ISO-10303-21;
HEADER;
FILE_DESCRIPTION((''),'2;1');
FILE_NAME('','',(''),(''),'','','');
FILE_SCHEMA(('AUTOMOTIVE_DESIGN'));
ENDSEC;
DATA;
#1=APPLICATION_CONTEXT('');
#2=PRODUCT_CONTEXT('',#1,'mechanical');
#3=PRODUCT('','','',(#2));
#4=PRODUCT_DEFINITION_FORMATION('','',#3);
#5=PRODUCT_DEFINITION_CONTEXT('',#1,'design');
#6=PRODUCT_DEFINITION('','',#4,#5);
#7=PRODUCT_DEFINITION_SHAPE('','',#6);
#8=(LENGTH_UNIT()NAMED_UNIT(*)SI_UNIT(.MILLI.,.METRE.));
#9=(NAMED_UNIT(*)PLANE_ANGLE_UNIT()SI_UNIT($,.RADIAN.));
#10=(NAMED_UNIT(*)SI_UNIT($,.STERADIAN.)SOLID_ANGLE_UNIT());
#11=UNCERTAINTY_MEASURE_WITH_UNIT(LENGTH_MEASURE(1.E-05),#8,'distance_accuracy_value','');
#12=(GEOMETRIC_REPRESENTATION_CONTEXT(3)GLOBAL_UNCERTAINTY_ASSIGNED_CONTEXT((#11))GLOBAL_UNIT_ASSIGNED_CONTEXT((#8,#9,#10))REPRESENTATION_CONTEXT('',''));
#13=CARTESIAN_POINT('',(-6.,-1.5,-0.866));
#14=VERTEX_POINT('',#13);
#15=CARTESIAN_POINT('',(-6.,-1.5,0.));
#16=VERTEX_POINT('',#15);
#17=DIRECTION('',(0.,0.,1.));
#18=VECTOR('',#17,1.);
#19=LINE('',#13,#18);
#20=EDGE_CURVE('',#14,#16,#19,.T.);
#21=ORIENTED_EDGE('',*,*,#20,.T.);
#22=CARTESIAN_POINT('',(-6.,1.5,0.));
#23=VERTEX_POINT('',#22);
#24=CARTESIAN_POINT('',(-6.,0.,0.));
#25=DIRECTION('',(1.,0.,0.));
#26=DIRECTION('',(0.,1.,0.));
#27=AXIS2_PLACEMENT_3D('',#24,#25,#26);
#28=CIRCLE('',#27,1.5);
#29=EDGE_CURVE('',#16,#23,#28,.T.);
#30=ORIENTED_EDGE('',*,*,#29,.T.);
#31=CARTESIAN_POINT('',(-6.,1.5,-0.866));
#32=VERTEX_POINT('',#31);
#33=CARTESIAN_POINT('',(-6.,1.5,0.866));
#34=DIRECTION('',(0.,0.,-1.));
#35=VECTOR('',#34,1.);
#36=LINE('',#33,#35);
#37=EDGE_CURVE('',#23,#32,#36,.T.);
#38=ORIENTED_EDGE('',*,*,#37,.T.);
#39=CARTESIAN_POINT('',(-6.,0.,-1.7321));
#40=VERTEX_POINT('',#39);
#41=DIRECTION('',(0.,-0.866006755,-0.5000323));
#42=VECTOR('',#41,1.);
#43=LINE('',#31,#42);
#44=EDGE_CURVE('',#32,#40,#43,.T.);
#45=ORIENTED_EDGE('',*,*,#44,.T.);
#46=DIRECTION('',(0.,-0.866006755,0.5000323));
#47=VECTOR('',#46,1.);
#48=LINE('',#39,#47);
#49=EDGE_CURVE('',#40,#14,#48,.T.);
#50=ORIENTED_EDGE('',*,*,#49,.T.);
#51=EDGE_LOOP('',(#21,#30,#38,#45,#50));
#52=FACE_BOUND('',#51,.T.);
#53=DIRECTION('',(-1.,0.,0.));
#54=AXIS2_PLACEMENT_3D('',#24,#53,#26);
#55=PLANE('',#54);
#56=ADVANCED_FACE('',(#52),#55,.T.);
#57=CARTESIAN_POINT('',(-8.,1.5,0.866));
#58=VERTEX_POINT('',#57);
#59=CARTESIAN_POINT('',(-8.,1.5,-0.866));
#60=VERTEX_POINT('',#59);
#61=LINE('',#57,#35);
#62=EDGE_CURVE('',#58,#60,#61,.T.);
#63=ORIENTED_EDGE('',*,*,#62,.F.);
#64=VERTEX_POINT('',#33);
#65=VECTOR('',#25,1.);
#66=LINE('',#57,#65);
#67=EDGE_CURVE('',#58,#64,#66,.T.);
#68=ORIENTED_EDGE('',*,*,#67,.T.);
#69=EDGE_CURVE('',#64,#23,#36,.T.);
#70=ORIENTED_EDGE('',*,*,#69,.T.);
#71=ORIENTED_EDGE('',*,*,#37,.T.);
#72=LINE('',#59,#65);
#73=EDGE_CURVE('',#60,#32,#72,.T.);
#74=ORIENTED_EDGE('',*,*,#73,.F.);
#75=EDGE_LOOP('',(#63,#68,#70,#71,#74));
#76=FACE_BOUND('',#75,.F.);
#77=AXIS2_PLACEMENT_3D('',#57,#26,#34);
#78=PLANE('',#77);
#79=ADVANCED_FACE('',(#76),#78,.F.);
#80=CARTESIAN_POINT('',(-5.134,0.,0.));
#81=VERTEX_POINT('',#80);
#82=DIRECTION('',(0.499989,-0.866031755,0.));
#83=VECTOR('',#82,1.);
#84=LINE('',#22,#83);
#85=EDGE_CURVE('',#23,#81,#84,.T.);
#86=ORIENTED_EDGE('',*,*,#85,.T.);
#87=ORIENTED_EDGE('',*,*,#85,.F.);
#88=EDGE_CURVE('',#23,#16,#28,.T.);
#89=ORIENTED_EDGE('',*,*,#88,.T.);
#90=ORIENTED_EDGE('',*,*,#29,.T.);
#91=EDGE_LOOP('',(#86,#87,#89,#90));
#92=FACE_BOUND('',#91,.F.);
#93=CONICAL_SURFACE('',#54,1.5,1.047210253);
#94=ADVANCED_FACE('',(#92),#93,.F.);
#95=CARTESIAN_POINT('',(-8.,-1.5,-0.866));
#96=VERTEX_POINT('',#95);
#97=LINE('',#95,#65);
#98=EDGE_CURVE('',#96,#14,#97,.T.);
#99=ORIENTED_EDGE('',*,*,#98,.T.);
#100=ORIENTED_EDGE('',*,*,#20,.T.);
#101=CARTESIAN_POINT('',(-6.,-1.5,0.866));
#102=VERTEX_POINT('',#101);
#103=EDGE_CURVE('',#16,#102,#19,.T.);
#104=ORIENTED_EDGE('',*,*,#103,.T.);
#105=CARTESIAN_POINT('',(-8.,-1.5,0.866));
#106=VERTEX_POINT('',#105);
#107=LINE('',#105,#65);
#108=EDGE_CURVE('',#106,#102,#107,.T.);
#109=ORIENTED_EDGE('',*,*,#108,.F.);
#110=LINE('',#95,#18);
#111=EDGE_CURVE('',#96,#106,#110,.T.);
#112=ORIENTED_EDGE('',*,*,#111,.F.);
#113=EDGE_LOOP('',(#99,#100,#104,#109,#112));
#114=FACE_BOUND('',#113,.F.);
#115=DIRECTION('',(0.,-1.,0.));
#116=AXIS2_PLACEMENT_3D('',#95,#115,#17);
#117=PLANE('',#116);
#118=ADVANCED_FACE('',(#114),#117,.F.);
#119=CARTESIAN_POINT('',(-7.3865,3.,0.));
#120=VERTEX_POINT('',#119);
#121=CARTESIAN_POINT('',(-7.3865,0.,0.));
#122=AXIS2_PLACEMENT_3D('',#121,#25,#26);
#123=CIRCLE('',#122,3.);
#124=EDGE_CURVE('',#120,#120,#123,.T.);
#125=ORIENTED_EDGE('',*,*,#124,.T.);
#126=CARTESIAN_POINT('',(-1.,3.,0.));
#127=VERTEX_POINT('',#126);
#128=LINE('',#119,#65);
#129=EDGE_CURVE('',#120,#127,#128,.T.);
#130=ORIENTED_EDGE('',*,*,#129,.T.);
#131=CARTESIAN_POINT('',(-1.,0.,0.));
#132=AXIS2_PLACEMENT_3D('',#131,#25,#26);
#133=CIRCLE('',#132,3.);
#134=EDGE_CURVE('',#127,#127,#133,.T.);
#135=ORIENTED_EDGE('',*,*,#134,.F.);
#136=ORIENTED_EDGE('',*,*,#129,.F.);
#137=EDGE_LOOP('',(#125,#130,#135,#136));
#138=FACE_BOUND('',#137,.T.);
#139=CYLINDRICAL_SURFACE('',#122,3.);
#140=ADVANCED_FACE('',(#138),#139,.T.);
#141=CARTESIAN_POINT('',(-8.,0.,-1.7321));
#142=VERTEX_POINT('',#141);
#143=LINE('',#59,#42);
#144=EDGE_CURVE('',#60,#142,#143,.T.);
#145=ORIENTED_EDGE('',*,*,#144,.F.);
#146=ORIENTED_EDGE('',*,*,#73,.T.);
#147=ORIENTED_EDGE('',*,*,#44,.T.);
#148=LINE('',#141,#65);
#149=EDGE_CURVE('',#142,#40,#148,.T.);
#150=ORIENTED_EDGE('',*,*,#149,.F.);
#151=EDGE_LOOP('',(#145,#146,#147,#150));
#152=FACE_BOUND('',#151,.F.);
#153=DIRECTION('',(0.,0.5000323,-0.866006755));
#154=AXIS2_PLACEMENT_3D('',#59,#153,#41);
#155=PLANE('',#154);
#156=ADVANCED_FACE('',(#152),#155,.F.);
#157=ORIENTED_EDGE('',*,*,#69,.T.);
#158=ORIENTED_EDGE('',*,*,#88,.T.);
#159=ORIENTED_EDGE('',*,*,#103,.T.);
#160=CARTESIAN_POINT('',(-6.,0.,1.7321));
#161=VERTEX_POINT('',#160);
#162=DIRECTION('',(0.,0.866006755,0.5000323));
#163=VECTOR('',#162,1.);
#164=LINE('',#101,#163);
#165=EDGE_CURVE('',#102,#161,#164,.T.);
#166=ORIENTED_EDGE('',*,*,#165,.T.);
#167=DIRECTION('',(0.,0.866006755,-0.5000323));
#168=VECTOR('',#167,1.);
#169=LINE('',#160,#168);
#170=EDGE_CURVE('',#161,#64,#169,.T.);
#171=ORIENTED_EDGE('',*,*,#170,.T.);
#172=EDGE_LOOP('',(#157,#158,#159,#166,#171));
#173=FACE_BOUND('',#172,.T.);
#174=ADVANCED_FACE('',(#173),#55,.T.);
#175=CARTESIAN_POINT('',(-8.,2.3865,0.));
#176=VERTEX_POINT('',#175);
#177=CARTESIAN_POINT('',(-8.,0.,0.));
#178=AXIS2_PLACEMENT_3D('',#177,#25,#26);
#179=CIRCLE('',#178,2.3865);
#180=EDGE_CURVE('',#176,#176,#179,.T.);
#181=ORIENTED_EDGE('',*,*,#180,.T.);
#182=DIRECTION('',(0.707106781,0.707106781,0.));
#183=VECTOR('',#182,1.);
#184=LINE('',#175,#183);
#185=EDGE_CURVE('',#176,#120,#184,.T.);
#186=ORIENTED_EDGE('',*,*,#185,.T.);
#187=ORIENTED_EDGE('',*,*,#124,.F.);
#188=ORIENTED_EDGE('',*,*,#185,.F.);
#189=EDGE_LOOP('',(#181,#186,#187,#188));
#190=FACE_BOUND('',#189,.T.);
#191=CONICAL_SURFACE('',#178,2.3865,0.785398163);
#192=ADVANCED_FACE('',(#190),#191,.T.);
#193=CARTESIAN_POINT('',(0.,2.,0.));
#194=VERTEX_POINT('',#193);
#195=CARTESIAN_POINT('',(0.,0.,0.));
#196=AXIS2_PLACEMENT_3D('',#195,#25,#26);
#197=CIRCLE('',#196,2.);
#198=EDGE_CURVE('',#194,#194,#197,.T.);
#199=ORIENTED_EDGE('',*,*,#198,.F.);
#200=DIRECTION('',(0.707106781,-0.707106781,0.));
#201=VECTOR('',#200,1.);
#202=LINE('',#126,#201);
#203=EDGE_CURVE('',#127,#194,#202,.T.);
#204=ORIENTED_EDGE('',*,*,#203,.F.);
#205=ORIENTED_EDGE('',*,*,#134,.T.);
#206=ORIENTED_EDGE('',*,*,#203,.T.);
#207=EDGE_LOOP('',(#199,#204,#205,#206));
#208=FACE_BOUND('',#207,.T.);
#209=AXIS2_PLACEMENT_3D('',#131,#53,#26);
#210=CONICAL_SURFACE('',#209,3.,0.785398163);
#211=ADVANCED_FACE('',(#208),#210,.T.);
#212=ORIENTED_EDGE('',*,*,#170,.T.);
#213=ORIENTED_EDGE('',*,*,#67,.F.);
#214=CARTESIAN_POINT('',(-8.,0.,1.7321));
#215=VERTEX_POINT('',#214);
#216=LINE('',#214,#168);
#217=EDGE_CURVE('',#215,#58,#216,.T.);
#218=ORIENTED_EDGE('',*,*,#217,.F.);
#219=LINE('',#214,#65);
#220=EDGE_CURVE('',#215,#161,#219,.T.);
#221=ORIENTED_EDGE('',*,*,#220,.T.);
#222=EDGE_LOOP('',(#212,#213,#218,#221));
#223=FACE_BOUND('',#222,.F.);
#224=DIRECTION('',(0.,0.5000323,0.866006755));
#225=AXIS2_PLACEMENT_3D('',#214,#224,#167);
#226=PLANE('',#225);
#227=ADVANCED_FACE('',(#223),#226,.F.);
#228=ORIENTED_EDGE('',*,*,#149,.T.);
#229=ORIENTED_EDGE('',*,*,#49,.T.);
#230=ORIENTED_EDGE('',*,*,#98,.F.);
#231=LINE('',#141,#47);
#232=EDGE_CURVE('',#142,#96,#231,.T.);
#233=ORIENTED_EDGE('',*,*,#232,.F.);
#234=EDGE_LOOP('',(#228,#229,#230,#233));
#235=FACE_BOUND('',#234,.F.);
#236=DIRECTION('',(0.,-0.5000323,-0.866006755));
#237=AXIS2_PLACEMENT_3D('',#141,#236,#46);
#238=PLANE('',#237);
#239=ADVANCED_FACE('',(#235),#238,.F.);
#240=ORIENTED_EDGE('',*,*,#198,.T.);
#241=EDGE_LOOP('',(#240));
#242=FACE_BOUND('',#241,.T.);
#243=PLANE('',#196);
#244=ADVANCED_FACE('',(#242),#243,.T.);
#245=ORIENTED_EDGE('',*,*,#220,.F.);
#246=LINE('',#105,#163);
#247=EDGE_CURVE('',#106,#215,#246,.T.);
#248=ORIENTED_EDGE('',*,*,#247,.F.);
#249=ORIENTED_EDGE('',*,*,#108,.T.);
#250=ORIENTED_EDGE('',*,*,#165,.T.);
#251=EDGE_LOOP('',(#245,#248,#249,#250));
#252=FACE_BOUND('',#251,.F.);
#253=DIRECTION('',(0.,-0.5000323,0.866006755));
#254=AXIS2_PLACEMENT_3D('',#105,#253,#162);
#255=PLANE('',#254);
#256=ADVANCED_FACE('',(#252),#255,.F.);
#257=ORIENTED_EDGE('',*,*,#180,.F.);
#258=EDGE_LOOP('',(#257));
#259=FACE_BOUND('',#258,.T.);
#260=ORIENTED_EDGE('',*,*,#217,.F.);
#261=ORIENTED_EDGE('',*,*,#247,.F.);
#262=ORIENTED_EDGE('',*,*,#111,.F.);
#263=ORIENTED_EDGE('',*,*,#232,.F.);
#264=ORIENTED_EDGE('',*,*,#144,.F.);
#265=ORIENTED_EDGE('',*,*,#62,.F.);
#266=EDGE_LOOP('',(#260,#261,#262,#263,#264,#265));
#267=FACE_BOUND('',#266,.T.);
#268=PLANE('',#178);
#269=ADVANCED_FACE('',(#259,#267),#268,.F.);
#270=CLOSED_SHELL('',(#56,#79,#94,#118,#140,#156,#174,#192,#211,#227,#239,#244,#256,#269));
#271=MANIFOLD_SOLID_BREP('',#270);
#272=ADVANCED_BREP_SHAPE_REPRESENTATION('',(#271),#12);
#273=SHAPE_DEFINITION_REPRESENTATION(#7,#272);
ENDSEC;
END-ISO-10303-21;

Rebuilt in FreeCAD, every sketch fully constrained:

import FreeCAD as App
import Part
import Sketcher
Q = App.Units.Quantity


def add_polygon(sketch, points):
    """Adds a closed chain of lines whose ends are joined by coincident constraints."""
    first, n = sketch.GeometryCount, len(points)
    for a, b in zip(points, points[1:] + points[:1]):
        sketch.addGeometry(Part.LineSegment(App.Vector(*a, 0), App.Vector(*b, 0)), False)
    for i in range(n):
        sketch.addConstraint(Sketcher.Constraint("Coincident", first + i, 2, first + (i + 1) % n, 1))

doc = App.newDocument("Part")
params = doc.addObject("Spreadsheet::Sheet", "Params")
for row, (alias, value) in enumerate([
    ("sketch1_width", "8 mm"),
    ("sketch1_height", "2 mm"),
    ("revolution_angle", "360 deg"),
    ("pocket1_length", "2 mm"),
    ("sketch3_height", "1.5 mm"),
    ("groove_angle", "360 deg"),
], start=1):
    params.set(f"A{row}", alias)
    params.set(f"B{row}", "=" + value)
    params.setAlias(f"B{row}", alias)

body = doc.addObject("PartDesign::Body", "Body")

# Sketch on XY plane
sketch1 = body.newObject("Sketcher::SketchObject", "Sketch")
sketch1.AttachmentSupport = (doc.getObject("XY_Plane"), [""])
sketch1.MapMode = "FlatFace"
add_polygon(sketch1, [(-8, 0), (0, 0), (0, 2), (-1, 3), (-7.4, 3), (-8, 2.4)])  # lines 0-5
sketch1.addConstraint(Sketcher.Constraint("Horizontal", 0))
sketch1.addConstraint(Sketcher.Constraint("Vertical", 1))
sketch1.addConstraint(Sketcher.Constraint("Horizontal", 3))
sketch1.addConstraint(Sketcher.Constraint("Vertical", 5))
sketch1.addConstraint(Sketcher.Constraint("Coincident", 0, 2, -1, 1))
sketch1.addConstraint(Sketcher.Constraint("Perpendicular", 2, 4))
sketch1.addConstraint(Sketcher.Constraint("DistanceX", 0, 1, 0, 2, 8.0))
sketch1.addConstraint(Sketcher.Constraint("DistanceY", 1, 1, 1, 2, 2.0))
sketch1.addConstraint(Sketcher.Constraint("Angle", 2, Q("135 deg")))
sketch1.addConstraint(Sketcher.Constraint("DistanceX", 2, 2, -1, 1, 1.0))
sketch1.addConstraint(Sketcher.Constraint("DistanceX", 3, 2, 3, 1, 6.3865))
sketch1.setExpression("Constraints[12]", "Params.sketch1_width")
sketch1.setExpression("Constraints[13]", "Params.sketch1_height")
revolution = body.newObject("PartDesign::Revolution", "Revolution")
revolution.Profile = sketch1
revolution.ReferenceAxis = (sketch1, ["H_Axis"])
revolution.setExpression("Angle", "Params.revolution_angle")

# Sketch on YZ plane
sketch2 = body.newObject("Sketcher::SketchObject", "Sketch001")
sketch2.AttachmentSupport = (doc.getObject("YZ_Plane"), [""])
sketch2.MapMode = "FlatFace"
sketch2.AttachmentOffset = App.Placement(App.Vector(0, 0, -8), App.Rotation())
add_polygon(sketch2, [(-1.5, -0.9), (-1.5, 0.9), (0, 1.7), (1.5, 0.9), (1.5, -0.9), (0, -1.7)])  # lines 0-5
sketch2.addConstraint(Sketcher.Constraint("Vertical", 0))
sketch2.addConstraint(Sketcher.Constraint("Vertical", 3))
sketch2.addConstraint(Sketcher.Constraint("Symmetric", 0, 2, 3, 2, -1, 1))
sketch2.addConstraint(Sketcher.Constraint("Symmetric", 1, 2, 4, 2, -1, 1))
sketch2.addConstraint(Sketcher.Constraint("PointOnObject", 1, 2, -2))
sketch2.addConstraint(Sketcher.Constraint("Parallel", 2, 5))
sketch2.addConstraint(Sketcher.Constraint("Horizontal", 0, 2, 2, 2))
sketch2.addConstraint(Sketcher.Constraint("DistanceX", 0, 2, 2, 2, 3.0))
sketch2.addConstraint(Sketcher.Constraint("DistanceY", 0, 1, 0, 2, 1.732))
sketch2.addConstraint(Sketcher.Constraint("Distance", 1, 1.732))
pocket1 = body.newObject("PartDesign::Pocket", "Pocket")
pocket1.Profile = sketch2
pocket1.setExpression("Length", "Params.pocket1_length")
pocket1.Reversed = True

# Sketch on XY plane
sketch3 = body.newObject("Sketcher::SketchObject", "Sketch002")
sketch3.AttachmentSupport = (doc.getObject("XY_Plane"), [""])
sketch3.MapMode = "FlatFace"
add_polygon(sketch3, [(-6, 0), (-5.1, 0), (-6, 1.5)])  # lines 0-2
sketch3.addConstraint(Sketcher.Constraint("Horizontal", 0))
sketch3.addConstraint(Sketcher.Constraint("Vertical", 2))
sketch3.addConstraint(Sketcher.Constraint("PointOnObject", 0, 2, -1))
sketch3.addConstraint(Sketcher.Constraint("Angle", 1, Q("119.9993 deg")))
sketch3.addConstraint(Sketcher.Constraint("DistanceY", 2, 2, 2, 1, 1.5))
sketch3.addConstraint(Sketcher.Constraint("DistanceX", 1, 2, -1, 1, 6.0))
sketch3.setExpression("Constraints[7]", "Params.sketch3_height")
groove = body.newObject("PartDesign::Groove", "Groove")
groove.Profile = sketch3
groove.ReferenceAxis = (sketch3, ["H_Axis"])
groove.setExpression("Angle", "Params.groove_angle")

doc.recompute()
